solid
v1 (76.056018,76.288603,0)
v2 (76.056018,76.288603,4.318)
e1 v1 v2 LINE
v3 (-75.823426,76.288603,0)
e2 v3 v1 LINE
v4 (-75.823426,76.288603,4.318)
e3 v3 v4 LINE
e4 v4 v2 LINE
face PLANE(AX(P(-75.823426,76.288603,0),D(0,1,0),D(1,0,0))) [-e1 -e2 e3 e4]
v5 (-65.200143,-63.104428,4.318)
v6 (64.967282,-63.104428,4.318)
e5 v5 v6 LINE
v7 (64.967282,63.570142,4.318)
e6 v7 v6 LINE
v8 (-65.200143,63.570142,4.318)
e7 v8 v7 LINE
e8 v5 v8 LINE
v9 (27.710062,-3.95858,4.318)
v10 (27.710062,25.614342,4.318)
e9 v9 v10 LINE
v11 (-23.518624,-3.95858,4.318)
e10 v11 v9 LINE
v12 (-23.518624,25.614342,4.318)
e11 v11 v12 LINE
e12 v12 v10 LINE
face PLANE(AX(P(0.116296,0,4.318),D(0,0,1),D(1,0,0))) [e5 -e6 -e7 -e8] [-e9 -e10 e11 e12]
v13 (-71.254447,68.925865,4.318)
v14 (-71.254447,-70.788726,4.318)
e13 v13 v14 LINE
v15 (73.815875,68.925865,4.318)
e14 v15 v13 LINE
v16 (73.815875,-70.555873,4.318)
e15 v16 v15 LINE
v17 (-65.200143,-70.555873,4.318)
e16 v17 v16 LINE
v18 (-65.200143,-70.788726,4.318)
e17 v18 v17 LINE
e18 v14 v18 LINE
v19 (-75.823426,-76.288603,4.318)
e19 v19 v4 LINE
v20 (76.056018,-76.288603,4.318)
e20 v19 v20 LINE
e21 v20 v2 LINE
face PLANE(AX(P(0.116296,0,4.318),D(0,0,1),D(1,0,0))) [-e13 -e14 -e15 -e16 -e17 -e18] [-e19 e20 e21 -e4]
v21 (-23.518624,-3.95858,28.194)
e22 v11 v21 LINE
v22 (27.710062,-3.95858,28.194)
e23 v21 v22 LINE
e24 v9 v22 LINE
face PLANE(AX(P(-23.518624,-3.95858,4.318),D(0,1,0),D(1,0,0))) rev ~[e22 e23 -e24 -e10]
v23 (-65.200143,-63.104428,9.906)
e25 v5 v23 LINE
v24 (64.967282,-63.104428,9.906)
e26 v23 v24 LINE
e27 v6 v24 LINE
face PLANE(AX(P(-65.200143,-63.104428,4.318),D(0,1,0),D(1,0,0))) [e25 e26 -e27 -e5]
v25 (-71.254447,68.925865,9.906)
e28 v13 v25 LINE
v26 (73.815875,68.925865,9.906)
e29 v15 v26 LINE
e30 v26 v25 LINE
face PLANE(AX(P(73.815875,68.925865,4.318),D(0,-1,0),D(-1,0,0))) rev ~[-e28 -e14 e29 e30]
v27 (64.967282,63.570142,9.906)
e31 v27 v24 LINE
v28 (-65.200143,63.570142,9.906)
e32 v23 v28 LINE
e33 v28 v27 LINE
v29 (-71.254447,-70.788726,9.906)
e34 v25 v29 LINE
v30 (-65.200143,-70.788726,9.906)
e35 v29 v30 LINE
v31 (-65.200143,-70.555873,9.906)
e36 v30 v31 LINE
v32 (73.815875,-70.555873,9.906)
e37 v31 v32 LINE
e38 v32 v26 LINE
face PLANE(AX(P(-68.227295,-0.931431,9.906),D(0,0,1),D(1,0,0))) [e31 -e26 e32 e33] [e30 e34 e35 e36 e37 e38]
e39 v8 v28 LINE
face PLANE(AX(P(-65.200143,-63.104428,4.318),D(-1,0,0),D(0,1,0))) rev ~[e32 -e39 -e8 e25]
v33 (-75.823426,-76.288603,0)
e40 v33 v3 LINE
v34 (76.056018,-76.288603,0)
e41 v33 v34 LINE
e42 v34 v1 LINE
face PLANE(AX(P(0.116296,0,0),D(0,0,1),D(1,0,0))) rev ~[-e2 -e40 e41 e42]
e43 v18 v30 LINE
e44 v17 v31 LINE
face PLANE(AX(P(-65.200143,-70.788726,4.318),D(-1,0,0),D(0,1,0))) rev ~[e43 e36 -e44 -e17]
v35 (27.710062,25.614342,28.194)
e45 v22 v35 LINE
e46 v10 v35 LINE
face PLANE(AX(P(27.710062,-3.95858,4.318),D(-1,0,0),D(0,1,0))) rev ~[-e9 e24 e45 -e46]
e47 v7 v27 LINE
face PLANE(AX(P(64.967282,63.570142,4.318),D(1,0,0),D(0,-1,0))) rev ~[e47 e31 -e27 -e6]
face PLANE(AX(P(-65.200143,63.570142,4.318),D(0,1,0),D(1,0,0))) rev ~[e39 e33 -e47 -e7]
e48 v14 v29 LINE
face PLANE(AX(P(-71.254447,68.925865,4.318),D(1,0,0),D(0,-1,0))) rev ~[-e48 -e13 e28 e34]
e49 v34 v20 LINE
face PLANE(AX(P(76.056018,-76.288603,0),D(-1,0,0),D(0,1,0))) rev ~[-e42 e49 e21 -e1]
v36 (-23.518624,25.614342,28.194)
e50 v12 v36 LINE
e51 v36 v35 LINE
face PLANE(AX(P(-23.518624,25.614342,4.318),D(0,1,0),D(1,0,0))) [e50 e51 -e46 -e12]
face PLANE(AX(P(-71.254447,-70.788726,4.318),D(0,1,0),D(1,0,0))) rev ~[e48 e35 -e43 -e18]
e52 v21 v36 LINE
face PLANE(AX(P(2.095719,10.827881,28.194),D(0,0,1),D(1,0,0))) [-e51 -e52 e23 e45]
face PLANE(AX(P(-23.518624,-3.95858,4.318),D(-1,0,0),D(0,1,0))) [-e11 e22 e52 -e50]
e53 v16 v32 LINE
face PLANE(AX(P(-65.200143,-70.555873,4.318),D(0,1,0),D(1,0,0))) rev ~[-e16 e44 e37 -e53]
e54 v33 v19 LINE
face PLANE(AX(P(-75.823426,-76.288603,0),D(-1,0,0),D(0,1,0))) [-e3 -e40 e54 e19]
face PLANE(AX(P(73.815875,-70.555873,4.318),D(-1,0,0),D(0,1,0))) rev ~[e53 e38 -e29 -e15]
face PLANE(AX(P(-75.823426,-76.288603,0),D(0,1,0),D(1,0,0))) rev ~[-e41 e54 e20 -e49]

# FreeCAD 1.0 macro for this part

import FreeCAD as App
import Part
import Sketcher
from FreeCAD import Vector
Q = App.Units.Quantity


def add_polygon(sketch, points):
    """Adds a closed chain of lines whose ends are joined by coincident constraints."""
    first, n = sketch.GeometryCount, len(points)
    for a, b in zip(points, points[1:] + points[:1]):
        sketch.addGeometry(Part.LineSegment(App.Vector(*a, 0), App.Vector(*b, 0)), False)
    for i in range(n):
        sketch.addConstraint(Sketcher.Constraint("Coincident", first + i, 2, first + (i + 1) % n, 1))

doc = App.newDocument("Part")
body = doc.addObject("PartDesign::Body", "Body")

sketch1 = body.newObject("Sketcher::SketchObject", "Sketch")
sketch1.AttachmentSupport = (doc.getObject("XY_Plane"), [""])
sketch1.MapMode = "FlatFace"
add_polygon(sketch1, [(-76, 76), (-76, -76), (76, -76), (76, 76)])
sketch1.addConstraint([
    Sketcher.Constraint("Vertical", 0),
    Sketcher.Constraint("Horizontal", 1),
    Sketcher.Constraint("Vertical", 2),
    Sketcher.Constraint("Horizontal", 3),
    Sketcher.Constraint("DistanceX", 1, 1, 1, 2, Q("151.879445 mm")),
    Sketcher.Constraint("DistanceY", 0, 2, 0, 1, Q("152.577206 mm")),
    Sketcher.Constraint("DistanceX", -1, 1, 1, 2, Q("76.056018 mm")),
    Sketcher.Constraint("DistanceY", 0, 2, -1, 1, Q("76.288603 mm")),
])
pad1 = body.newObject("PartDesign::Pad", "Pad")
pad1.Profile = sketch1
pad1.Length = Q("0.17 in")

sketch2 = body.newObject("Sketcher::SketchObject", "Sketch001")
sketch2.AttachmentSupport = (doc.getObject("XY_Plane"), [""])
sketch2.MapMode = "FlatFace"
sketch2.AttachmentOffset = App.Placement(Vector(0, 0, 0.17 * 25.4), App.Rotation())
add_polygon(sketch2, [(-71.25, 68.93), (-71.25, -70.79), (-65.2, -70.79), (-65.2, -70.56), (73.82, -70.56), (73.82, 68.93)])
add_polygon(sketch2, [(-65.2, -63.1), (-65.2, 63.57), (64.97, 63.57), (64.97, -63.1)])
sketch2.addConstraint([
    Sketcher.Constraint("Vertical", 0),
    Sketcher.Constraint("Horizontal", 1),
    Sketcher.Constraint("Vertical", 2),
    Sketcher.Constraint("Horizontal", 3),
    Sketcher.Constraint("Vertical", 4),
    Sketcher.Constraint("Horizontal", 5),
    Sketcher.Constraint("Vertical", 6),
    Sketcher.Constraint("Horizontal", 7),
    Sketcher.Constraint("Vertical", 8),
    Sketcher.Constraint("Horizontal", 9),
    Sketcher.Constraint("Vertical", 2, 2, 6, 2),
    Sketcher.Constraint("DistanceX", 5, 2, 5, 1, Q("145.070322 mm")),
    Sketcher.Constraint("DistanceY", 0, 2, 0, 1, Q("139.714591 mm")),
    Sketcher.Constraint("DistanceY", 4, 1, 4, 2, Q("139.481738 mm")),
    Sketcher.Constraint("DistanceY", 6, 1, 6, 2, Q("126.67457 mm")),
    Sketcher.Constraint("DistanceX", 1, 1, 1, 2, Q("6.054305 mm")),
    Sketcher.Constraint("DistanceX", 7, 1, 7, 2, Q("130.167425 mm")),
    Sketcher.Constraint("DistanceY", -1, 1, 6, 2, Q("63.570142 mm")),
    Sketcher.Constraint("DistanceY", 1, 2, 6, 2, Q("134.358868 mm")),
    Sketcher.Constraint("DistanceX", 0, 2, -1, 1, Q("71.254447 mm")),
])
pad2 = body.newObject("PartDesign::Pad", "Pad001")
pad2.Profile = sketch2
pad2.Length = Q("0.22 in")

sketch3 = body.newObject("Sketcher::SketchObject", "Sketch002")
sketch3.AttachmentSupport = (doc.getObject("XY_Plane"), [""])
sketch3.MapMode = "FlatFace"
sketch3.AttachmentOffset = App.Placement(Vector(0, 0, 0.17 * 25.4), App.Rotation())
add_polygon(sketch3, [(-24, 26), (-24, -4), (28, -4), (28, 26)])
sketch3.addConstraint([
    Sketcher.Constraint("Vertical", 0),
    Sketcher.Constraint("Horizontal", 1),
    Sketcher.Constraint("Vertical", 2),
    Sketcher.Constraint("Horizontal", 3),
    Sketcher.Constraint("DistanceY", 0, 2, 0, 1, Q("29.572922 mm")),
    Sketcher.Constraint("DistanceX", 1, 1, 1, 2, Q("51.228685 mm")),
    Sketcher.Constraint("DistanceY", 0, 2, -1, 1, Q("3.95858 mm")),
    Sketcher.Constraint("DistanceX", -1, 1, 1, 2, Q("27.710062 mm")),
])
pad3 = body.newObject("PartDesign::Pad", "Pad002")
pad3.Profile = sketch3
pad3.Length = Q("0.94 in")

doc.recompute()
